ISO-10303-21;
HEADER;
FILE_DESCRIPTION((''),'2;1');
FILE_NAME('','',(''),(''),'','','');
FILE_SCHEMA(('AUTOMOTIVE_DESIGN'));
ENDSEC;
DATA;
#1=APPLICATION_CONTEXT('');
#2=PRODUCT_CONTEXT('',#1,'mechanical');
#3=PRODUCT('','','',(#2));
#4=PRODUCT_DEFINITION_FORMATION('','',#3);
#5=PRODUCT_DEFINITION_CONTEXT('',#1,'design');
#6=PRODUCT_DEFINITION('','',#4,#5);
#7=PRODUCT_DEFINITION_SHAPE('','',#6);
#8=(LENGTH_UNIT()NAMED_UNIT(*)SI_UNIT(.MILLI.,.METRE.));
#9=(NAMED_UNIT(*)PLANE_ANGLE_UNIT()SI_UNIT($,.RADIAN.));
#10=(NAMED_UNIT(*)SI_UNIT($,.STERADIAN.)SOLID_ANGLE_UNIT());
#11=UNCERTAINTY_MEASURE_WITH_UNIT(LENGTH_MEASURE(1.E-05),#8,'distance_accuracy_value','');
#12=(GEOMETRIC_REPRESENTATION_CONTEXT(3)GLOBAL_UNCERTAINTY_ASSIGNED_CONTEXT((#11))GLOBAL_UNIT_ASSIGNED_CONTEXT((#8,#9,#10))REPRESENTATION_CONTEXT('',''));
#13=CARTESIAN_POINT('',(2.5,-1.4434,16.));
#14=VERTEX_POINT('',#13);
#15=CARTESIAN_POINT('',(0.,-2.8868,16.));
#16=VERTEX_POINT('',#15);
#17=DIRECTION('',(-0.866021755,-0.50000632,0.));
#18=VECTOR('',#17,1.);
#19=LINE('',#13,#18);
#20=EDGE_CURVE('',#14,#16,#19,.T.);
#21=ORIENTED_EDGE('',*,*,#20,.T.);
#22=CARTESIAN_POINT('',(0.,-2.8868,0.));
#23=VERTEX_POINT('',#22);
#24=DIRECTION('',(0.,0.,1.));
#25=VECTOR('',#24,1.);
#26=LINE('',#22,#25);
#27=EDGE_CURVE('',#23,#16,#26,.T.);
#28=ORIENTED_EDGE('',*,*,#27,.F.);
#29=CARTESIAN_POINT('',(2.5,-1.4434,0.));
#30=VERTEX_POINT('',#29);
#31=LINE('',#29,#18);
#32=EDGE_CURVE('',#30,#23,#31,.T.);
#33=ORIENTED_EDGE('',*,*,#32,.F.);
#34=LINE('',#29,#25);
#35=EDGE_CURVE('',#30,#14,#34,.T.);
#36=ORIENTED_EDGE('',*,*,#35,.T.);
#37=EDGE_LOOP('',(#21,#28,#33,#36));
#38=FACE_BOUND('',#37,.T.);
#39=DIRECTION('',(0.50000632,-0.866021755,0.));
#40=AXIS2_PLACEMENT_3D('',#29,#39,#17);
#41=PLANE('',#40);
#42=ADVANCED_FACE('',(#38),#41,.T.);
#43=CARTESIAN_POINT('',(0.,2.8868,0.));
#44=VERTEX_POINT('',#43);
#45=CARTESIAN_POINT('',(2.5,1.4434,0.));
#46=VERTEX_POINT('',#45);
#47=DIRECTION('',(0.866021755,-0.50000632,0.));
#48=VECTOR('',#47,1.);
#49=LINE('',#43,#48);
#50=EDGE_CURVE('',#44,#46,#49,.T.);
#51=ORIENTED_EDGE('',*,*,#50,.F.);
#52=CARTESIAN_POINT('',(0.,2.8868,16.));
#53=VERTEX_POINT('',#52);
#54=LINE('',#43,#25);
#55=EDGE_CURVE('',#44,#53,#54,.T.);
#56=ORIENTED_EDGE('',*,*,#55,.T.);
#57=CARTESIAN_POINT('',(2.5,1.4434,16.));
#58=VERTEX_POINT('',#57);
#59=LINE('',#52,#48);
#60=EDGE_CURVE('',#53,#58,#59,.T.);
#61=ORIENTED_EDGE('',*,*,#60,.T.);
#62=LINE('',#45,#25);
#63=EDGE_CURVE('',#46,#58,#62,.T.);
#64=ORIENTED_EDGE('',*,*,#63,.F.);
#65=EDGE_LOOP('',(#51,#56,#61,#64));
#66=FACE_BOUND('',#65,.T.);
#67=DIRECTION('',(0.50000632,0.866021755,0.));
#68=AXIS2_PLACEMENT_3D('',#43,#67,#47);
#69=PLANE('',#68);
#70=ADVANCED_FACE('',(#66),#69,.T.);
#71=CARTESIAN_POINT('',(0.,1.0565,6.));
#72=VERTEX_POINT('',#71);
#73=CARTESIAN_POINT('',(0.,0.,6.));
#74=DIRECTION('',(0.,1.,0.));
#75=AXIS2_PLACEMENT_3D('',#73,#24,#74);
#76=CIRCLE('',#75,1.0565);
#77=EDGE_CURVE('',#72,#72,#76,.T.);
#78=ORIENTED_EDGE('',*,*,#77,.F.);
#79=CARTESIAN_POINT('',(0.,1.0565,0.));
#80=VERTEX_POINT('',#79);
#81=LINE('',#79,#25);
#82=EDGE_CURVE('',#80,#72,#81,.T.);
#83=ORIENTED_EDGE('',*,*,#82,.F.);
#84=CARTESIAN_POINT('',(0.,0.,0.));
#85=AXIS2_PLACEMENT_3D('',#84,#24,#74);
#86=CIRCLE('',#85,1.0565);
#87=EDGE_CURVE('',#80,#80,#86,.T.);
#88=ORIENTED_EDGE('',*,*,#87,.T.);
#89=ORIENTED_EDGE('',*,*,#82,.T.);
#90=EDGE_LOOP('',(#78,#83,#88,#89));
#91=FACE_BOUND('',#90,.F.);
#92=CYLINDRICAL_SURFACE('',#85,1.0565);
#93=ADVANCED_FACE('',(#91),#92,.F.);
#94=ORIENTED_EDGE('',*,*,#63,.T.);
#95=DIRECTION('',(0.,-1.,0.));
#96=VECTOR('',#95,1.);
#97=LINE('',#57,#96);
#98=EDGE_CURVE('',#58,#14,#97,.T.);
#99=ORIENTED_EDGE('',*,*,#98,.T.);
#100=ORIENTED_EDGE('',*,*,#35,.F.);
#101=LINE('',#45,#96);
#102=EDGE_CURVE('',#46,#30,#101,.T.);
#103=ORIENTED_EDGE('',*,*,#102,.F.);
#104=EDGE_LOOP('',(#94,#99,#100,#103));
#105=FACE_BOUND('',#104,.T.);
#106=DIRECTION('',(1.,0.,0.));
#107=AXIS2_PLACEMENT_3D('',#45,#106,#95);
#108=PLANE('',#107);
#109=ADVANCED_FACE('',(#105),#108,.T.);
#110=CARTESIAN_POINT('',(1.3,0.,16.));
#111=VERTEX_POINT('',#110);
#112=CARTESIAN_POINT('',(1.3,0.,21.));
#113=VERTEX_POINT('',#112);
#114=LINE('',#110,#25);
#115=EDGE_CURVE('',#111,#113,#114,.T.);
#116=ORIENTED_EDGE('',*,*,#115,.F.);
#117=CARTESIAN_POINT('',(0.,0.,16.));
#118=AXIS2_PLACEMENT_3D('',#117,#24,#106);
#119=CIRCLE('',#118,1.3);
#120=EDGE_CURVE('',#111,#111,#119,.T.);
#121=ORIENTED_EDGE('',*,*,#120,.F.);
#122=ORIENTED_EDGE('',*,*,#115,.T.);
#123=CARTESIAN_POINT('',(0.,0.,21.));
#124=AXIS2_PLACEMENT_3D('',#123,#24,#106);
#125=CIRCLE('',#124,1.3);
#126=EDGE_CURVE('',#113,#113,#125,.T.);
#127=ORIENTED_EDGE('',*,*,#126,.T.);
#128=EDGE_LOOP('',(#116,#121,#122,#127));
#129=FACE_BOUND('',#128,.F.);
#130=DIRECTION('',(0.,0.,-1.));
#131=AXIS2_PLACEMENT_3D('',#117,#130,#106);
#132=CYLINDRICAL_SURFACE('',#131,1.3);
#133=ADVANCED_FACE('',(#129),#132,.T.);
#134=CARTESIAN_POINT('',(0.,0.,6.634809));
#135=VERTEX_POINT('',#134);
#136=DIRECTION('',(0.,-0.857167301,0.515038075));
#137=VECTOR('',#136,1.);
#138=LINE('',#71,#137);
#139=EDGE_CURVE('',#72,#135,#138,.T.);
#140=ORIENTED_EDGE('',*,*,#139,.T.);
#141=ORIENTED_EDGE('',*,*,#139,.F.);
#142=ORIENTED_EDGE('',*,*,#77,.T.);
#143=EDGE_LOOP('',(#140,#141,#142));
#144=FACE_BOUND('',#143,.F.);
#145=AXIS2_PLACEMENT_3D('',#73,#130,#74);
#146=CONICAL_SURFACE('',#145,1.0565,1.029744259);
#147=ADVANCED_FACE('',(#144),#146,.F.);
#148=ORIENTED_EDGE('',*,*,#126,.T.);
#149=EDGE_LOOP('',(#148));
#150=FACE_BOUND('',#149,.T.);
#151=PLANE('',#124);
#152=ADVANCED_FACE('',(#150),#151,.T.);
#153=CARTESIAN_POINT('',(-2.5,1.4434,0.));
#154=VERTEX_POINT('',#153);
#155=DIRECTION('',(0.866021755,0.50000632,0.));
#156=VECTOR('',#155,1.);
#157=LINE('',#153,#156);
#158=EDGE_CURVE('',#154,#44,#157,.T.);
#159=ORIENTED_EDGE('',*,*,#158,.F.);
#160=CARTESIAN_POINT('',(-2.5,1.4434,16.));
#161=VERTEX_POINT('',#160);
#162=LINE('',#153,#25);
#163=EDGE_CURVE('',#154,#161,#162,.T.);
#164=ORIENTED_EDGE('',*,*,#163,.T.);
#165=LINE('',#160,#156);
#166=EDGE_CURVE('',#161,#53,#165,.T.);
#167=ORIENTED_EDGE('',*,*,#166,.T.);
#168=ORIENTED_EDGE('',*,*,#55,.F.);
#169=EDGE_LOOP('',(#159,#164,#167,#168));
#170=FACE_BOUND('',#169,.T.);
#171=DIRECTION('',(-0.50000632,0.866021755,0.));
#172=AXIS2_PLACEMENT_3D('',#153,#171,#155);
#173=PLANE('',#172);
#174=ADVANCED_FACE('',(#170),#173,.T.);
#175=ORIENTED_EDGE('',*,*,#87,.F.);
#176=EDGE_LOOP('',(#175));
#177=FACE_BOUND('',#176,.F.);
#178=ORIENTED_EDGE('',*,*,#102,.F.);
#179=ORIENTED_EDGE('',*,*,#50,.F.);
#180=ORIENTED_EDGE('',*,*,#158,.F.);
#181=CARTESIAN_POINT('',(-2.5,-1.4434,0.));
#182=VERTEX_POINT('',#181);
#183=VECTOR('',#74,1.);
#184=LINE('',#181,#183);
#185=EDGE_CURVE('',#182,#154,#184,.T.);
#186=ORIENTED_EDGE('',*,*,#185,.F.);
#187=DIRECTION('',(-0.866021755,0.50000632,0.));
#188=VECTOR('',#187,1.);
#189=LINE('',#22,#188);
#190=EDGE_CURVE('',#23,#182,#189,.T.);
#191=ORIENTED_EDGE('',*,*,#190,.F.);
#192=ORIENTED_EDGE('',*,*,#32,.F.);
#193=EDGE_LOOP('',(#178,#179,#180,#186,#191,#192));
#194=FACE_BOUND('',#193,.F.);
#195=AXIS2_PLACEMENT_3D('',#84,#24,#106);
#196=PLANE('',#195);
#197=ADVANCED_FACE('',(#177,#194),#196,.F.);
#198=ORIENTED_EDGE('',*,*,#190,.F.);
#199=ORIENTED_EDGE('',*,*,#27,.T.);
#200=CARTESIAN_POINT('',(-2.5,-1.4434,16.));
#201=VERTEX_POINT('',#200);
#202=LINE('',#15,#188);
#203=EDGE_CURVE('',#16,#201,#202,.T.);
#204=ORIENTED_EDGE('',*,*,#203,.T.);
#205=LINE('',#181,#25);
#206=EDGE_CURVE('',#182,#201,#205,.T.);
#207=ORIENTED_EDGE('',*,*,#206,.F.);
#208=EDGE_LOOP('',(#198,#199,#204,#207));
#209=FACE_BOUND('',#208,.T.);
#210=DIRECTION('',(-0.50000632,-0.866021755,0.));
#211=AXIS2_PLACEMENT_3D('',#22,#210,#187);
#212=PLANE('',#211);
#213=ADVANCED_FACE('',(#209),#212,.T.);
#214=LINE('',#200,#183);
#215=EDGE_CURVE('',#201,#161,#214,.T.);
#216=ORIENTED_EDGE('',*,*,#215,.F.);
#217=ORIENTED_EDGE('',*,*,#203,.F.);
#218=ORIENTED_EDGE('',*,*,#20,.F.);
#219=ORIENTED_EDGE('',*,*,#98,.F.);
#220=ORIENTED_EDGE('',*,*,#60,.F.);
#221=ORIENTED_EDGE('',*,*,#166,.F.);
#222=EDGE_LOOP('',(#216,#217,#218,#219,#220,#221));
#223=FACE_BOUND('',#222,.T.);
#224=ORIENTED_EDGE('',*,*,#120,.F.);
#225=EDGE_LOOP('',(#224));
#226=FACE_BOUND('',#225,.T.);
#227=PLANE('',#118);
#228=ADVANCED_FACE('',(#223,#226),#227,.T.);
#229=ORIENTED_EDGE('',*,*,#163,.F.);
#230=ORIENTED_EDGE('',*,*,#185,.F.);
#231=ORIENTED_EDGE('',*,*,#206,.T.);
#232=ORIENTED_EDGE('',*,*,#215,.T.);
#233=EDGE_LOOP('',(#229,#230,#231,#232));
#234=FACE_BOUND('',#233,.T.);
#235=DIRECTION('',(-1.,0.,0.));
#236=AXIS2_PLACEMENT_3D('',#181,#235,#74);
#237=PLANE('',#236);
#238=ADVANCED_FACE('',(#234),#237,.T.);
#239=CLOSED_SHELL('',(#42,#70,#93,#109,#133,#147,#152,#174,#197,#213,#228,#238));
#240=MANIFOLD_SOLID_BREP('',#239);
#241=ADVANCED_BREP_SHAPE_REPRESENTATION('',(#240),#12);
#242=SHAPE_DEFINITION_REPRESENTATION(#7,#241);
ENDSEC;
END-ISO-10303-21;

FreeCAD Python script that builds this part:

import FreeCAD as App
import Part
import Sketcher
Q = App.Units.Quantity


def add_polygon(sketch, points):
    """Adds a closed chain of lines whose ends are joined by coincident constraints."""
    first, n = sketch.GeometryCount, len(points)
    for a, b in zip(points, points[1:] + points[:1]):
        sketch.addGeometry(Part.LineSegment(App.Vector(*a, 0), App.Vector(*b, 0)), False)
    for i in range(n):
        sketch.addConstraint(Sketcher.Constraint("Coincident", first + i, 2, first + (i + 1) % n, 1))

doc = App.newDocument("Part")
params = doc.addObject("Spreadsheet::Sheet", "Params")
for row, (alias, value) in enumerate([
    ("pad1_length", "16 mm"),
    ("sketch2_diameter", "2.6 mm"),
    ("pad2_length", "5 mm"),
    ("hole_diameter", "2.113 mm"),
    ("hole_depth", "6 mm"),
], start=1):
    params.set(f"A{row}", alias)
    params.set(f"B{row}", "=" + value)
    params.setAlias(f"B{row}", alias)

body = doc.addObject("PartDesign::Body", "Body")

sketch1 = doc.addObject("Sketcher::SketchObject", "Sketch")
body.addObject(sketch1)
sketch1.AttachmentSupport = (doc.XY_Plane, [""])
sketch1.MapMode = "FlatFace"
add_polygon(sketch1, [(2.5, 1.4), (0, 2.9), (-2.5, 1.4), (-2.5, -1.4), (0, -2.9), (2.5, -1.4)])
sketch1.addConstraint([
    Sketcher.Constraint("Vertical", 2),
    Sketcher.Constraint("Vertical", 5),
    Sketcher.Constraint("Symmetric", 0, 2, 3, 2, -1, 1),
    Sketcher.Constraint("Symmetric", 1, 2, 4, 2, -1, 1),
    Sketcher.Constraint("PointOnObject", 0, 2, -2),
    Sketcher.Constraint("Parallel", 0, 3),
    Sketcher.Constraint("Horizontal", 2, 2, 4, 2),
    Sketcher.Constraint("DistanceX", 2, 2, 4, 2, Q("5 mm")),
    Sketcher.Constraint("Angle", 0, Q("149.9996 deg")),
    Sketcher.Constraint("DistanceY", 2, 2, 2, 1, Q("2.8868 mm")),
])
pad1 = doc.addObject("PartDesign::Pad", "Pad")
body.addObject(pad1)
pad1.Profile = sketch1
pad1.setExpression("Length", "Params.pad1_length")

sketch2 = doc.addObject("Sketcher::SketchObject", "Sketch001")
body.addObject(sketch2)
sketch2.AttachmentSupport = (doc.XY_Plane, [""])
sketch2.MapMode = "FlatFace"
sketch2.AttachmentOffset = App.Placement(App.Vector(0, 0, 16), App.Rotation())
sketch2.addGeometry(Part.Circle(App.Vector(0, 0, 0), App.Vector(0, 0, 1), 1.3), False)
sketch2.addConstraint([
    Sketcher.Constraint("Coincident", 0, 3, -1, 1),
    Sketcher.Constraint("Diameter", 0, Q("2.6 mm")),
])
sketch2.setExpression("Constraints[1]", "Params.sketch2_diameter")
pad2 = doc.addObject("PartDesign::Pad", "Pad001")
body.addObject(pad2)
pad2.Profile = sketch2
pad2.setExpression("Length", "Params.pad2_length")

sketch3 = doc.addObject("Sketcher::SketchObject", "Sketch002")
body.addObject(sketch3)
sketch3.AttachmentSupport = (doc.XY_Plane, [""])
sketch3.MapMode = "FlatFace"
sketch3.addGeometry(Part.Circle(App.Vector(0, 0, 0), App.Vector(0, 0, 1), 1.1), False)
sketch3.addConstraint([
    Sketcher.Constraint("Coincident", 0, 3, -1, 1),
    Sketcher.Constraint("Diameter", 0, Q("2.113 mm")),
])
doc.recompute()
hole = doc.addObject("PartDesign::Hole", "Hole")
body.addObject(hole)
hole.Profile = sketch3
hole.ThreadType = "None"
hole.setExpression("Diameter", "Params.hole_diameter")
hole.DepthType = "Dimension"
hole.setExpression("Depth", "Params.hole_depth")
hole.DrillPoint = "Angled"
hole.DrillPointAngle = 118
hole.Reversed = True

doc.recompute()
